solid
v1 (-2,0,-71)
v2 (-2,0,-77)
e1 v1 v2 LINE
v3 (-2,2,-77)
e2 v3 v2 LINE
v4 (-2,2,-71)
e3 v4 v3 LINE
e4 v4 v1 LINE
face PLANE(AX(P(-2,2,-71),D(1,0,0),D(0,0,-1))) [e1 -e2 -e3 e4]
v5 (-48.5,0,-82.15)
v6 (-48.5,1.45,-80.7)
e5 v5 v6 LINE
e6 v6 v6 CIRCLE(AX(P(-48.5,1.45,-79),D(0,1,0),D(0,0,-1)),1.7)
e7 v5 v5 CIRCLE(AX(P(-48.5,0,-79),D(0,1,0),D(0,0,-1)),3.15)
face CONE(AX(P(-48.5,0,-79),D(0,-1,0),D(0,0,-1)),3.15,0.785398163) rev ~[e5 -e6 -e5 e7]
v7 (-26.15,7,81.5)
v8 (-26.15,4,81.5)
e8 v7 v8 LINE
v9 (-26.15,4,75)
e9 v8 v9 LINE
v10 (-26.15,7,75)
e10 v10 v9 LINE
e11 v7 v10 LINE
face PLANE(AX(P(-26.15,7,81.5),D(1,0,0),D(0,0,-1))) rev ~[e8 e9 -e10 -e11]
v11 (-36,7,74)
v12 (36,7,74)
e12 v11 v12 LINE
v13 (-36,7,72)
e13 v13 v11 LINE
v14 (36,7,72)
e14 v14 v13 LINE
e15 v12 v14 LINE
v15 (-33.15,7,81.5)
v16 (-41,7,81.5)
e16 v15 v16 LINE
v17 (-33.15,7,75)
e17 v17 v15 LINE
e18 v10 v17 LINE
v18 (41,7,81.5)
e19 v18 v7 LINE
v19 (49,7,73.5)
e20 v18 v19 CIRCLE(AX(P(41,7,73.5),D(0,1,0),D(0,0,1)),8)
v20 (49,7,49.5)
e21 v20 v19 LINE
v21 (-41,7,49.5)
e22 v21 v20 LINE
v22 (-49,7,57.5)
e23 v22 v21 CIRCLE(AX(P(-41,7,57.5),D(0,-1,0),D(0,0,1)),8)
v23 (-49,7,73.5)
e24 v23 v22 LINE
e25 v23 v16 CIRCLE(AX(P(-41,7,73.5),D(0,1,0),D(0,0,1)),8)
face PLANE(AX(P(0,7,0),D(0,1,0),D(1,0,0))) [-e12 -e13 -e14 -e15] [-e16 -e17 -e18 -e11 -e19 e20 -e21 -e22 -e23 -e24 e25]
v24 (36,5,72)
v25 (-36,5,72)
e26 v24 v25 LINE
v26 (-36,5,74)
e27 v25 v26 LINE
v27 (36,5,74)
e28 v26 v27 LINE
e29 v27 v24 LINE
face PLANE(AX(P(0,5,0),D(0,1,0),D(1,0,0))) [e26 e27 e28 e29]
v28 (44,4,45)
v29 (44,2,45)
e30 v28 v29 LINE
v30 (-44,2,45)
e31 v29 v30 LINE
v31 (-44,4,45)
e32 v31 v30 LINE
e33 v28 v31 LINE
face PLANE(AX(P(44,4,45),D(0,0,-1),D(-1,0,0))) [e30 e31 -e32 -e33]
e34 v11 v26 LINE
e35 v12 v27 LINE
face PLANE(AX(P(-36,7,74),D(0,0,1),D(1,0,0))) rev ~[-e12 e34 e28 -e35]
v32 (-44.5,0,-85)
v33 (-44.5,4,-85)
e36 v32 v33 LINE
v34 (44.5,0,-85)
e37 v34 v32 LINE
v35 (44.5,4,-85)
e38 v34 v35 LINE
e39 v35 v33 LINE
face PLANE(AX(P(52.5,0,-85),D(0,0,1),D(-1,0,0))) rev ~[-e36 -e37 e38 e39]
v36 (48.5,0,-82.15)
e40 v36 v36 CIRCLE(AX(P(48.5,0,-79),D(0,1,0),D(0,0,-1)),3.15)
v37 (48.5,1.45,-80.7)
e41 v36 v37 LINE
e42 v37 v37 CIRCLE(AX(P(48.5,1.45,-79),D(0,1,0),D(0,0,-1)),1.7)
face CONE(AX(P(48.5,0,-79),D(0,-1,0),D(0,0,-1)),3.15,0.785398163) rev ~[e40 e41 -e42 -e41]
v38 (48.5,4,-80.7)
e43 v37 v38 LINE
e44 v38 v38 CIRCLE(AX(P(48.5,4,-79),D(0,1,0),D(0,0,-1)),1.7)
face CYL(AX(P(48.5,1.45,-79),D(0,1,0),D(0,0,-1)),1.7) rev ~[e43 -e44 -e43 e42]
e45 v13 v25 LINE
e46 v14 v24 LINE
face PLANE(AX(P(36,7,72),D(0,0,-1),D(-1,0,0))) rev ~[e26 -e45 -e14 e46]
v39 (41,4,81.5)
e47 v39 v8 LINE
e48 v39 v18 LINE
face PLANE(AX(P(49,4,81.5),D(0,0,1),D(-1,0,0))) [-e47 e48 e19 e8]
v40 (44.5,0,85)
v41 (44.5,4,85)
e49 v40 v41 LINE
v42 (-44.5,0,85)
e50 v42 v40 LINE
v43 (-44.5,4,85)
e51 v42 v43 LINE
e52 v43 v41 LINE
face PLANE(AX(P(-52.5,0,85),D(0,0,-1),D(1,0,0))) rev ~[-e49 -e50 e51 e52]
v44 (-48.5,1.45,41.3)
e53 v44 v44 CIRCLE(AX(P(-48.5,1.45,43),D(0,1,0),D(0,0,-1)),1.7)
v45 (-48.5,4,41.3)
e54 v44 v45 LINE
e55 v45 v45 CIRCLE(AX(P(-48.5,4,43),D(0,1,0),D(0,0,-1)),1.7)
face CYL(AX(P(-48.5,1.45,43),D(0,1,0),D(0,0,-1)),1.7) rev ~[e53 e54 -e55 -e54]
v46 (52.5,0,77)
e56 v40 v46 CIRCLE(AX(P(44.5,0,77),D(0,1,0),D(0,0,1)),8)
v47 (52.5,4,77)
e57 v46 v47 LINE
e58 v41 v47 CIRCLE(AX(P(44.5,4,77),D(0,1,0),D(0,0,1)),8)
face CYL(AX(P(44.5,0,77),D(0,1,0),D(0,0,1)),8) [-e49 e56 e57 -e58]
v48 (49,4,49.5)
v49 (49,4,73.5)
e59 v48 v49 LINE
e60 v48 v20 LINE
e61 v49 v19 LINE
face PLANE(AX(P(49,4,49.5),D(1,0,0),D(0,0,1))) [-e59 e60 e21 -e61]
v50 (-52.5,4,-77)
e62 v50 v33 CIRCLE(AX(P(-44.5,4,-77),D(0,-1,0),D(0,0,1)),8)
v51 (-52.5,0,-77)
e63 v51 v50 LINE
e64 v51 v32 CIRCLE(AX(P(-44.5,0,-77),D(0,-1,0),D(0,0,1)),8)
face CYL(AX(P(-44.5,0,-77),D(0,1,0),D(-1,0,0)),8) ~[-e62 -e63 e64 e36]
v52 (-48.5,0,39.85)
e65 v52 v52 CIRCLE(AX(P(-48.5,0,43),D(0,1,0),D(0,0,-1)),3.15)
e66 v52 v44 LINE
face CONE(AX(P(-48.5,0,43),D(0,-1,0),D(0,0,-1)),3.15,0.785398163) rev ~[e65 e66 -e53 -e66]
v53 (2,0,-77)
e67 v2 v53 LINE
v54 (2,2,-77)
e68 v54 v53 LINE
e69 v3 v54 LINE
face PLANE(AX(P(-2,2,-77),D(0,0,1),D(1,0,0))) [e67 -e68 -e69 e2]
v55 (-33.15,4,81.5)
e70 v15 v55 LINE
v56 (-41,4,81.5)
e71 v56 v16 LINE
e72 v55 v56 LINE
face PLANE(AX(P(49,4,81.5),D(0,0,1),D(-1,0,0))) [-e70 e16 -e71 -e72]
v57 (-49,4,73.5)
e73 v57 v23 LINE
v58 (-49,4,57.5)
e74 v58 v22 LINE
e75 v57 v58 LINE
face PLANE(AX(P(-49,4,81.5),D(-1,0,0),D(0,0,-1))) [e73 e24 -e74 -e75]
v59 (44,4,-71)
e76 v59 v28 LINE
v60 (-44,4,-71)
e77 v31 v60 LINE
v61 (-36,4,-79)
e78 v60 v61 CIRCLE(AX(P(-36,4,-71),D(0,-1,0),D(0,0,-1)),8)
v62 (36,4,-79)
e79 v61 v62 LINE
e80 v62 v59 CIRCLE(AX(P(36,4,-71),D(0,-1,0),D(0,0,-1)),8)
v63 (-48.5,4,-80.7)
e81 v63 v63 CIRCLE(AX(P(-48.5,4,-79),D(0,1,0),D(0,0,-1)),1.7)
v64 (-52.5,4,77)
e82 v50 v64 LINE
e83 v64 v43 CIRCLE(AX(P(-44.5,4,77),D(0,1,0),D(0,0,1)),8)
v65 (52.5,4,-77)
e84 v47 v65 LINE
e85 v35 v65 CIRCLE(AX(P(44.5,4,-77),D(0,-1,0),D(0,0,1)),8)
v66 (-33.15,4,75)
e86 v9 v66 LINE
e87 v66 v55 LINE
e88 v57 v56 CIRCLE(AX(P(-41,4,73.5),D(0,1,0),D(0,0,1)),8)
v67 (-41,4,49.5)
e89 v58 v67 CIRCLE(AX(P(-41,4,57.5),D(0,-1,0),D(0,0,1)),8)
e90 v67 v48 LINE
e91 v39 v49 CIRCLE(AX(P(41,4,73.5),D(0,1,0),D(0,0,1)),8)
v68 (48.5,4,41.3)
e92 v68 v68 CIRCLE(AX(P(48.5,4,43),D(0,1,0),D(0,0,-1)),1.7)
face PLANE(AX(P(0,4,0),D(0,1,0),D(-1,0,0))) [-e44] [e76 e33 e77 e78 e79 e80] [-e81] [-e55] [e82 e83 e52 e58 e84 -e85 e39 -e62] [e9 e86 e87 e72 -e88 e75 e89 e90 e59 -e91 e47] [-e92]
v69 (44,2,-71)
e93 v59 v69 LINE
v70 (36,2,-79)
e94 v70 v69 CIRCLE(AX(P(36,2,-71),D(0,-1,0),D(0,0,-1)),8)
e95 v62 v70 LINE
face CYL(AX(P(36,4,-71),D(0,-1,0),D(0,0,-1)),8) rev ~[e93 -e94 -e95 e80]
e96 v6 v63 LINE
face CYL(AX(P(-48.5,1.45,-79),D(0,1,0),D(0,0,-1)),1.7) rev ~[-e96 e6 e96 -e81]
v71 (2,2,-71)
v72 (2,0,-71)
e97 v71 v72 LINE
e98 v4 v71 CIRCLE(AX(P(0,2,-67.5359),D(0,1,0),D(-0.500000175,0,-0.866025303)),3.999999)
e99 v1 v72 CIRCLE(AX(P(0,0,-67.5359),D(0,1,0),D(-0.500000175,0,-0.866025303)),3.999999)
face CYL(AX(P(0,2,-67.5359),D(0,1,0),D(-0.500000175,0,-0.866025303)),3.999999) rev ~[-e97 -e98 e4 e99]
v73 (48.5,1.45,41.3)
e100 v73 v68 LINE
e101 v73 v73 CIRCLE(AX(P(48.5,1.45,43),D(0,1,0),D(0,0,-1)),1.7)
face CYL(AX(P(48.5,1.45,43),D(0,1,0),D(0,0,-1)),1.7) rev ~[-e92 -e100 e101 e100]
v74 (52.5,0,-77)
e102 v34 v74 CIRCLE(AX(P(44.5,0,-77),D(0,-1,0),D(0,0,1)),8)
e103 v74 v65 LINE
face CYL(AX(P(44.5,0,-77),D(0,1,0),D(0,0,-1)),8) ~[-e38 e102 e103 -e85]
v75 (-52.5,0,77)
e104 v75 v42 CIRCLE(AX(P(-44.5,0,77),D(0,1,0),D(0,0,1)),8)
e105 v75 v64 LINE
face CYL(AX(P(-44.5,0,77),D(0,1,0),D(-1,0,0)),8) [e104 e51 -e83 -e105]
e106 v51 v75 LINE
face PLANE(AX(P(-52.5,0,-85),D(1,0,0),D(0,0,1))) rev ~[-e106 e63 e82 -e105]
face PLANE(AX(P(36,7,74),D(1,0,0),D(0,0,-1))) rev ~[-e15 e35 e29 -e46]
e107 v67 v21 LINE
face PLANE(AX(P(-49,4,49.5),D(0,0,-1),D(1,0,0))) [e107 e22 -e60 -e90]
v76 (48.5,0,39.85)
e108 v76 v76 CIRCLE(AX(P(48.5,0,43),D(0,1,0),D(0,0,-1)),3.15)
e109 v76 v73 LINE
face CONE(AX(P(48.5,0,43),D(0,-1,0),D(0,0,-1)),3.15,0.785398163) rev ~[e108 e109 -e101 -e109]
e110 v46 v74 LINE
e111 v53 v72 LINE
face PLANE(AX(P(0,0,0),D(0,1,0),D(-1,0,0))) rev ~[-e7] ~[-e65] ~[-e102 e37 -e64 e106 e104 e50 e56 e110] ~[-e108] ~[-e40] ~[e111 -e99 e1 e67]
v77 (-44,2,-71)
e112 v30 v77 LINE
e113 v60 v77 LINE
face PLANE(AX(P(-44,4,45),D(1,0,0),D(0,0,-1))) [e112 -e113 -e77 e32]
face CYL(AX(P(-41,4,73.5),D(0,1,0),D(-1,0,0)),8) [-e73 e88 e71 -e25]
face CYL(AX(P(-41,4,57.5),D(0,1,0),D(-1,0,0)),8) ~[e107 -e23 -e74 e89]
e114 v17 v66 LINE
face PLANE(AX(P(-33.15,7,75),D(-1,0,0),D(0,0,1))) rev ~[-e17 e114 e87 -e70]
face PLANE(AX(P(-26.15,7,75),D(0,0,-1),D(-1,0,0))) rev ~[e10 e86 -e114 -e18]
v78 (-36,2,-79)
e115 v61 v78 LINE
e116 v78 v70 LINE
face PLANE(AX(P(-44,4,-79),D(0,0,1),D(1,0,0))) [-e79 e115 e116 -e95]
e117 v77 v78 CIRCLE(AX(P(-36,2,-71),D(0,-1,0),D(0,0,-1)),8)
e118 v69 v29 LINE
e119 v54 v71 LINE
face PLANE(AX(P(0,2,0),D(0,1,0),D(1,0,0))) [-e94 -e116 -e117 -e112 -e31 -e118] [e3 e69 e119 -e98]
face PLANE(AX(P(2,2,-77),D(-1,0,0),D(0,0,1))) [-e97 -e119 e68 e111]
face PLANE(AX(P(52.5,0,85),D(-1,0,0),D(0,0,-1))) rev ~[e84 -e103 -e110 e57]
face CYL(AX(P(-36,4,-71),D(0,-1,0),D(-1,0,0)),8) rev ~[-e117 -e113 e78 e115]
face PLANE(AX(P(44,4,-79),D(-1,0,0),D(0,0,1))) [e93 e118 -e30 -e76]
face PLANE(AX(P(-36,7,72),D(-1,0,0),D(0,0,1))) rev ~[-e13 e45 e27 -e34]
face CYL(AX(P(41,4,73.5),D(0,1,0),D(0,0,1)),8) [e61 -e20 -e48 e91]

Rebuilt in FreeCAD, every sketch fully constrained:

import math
import FreeCAD as App
import Part
import Sketcher
from FreeCAD import Vector


def edges_at(feature, points):
    """Names of the edges that pass closest to the given points."""
    edges = feature.Shape.Edges
    near = lambda p: min(range(len(edges)), key=lambda i: edges[i].distToShape(Part.Vertex(*p))[0])
    return sorted({f"Edge{near(p) + 1}" for p in points})

doc = App.newDocument("Part")
params = doc.addObject("Spreadsheet::Sheet", "Params")
for row, (alias, value) in enumerate([
    ("sketch1_width", "105 mm"),
    ("sketch1_height", "170 mm"),
    ("pad1_length", "4 mm"),
    ("sketch2_width", "88 mm"),
    ("sketch2_height", "124 mm"),
    ("pocket1_length", "2 mm"),
    ("sketch3_height", "32 mm"),
    ("sketch3_width", "98 mm"),
    ("pad2_length", "3 mm"),
    ("fillet_radius", "8 mm"),
    ("sketch4_diameter", "3.4 mm"),
    ("hole_diameter", "3.4 mm"),
    ("hole_depth", "8 mm"),
    ("hole_csink_diameter", "6.3 mm"),
    ("sketch5_radius", "4 mm"),
    ("sketch5_width", "4 mm"),
    ("sketch5_height", "6 mm"),
    ("pocket2_length", "10 mm"),
    ("sketch6_width", "7 mm"),
    ("sketch6_height", "6.5 mm"),
    ("pocket3_length", "3 mm"),
    ("sketch7_width", "72 mm"),
    ("sketch7_height", "2 mm"),
    ("pocket4_length", "2 mm"),
], start=1):
    params.set(f"A{row}", alias)
    params.set(f"B{row}", "=" + value)
    params.setAlias(f"B{row}", alias)

body = doc.addObject("PartDesign::Body", "Body")

# Sketch on XZ plane
sketch1 = body.newObject("Sketcher::SketchObject", "Sketch")
sketch1.AttachmentSupport = (doc.getObject("XZ_Plane"), [""])
sketch1.MapMode = "FlatFace"
sketch1.addGeometry(Part.LineSegment(Vector(-52, -85, 0), Vector(-52, 85, 0)), False)
sketch1.addGeometry(Part.LineSegment(Vector(-52, 85, 0), Vector(52, 85, 0)), False)
sketch1.addGeometry(Part.LineSegment(Vector(52, 85, 0), Vector(52, -85, 0)), False)
sketch1.addGeometry(Part.LineSegment(Vector(52, -85, 0), Vector(-52, -85, 0)), False)
sketch1.addConstraint(Sketcher.Constraint("Coincident", 0, 2, 1, 1))
sketch1.addConstraint(Sketcher.Constraint("Coincident", 1, 2, 2, 1))
sketch1.addConstraint(Sketcher.Constraint("Coincident", 2, 2, 3, 1))
sketch1.addConstraint(Sketcher.Constraint("Coincident", 3, 2, 0, 1))
sketch1.addConstraint(Sketcher.Constraint("Vertical", 0))
sketch1.addConstraint(Sketcher.Constraint("Horizontal", 1))
sketch1.addConstraint(Sketcher.Constraint("Vertical", 2))
sketch1.addConstraint(Sketcher.Constraint("Horizontal", 3))
sketch1.addConstraint(Sketcher.Constraint("Symmetric", 0, 2, 2, 2, -1, 1))
sketch1.addConstraint(Sketcher.Constraint("DistanceX", 1, 1, 1, 2, 105.0))
sketch1.addConstraint(Sketcher.Constraint("DistanceY", 0, 1, 0, 2, 170.0))
sketch1.setExpression("Constraints[9]", "Params.sketch1_width")
sketch1.setExpression("Constraints[10]", "Params.sketch1_height")
pad1 = body.newObject("PartDesign::Pad", "Pad")
pad1.Profile = sketch1
pad1.setExpression("Length", "Params.pad1_length")
pad1.Reversed = True

# Sketch on XZ plane
sketch2 = body.newObject("Sketcher::SketchObject", "Sketch001")
sketch2.AttachmentSupport = (doc.getObject("XZ_Plane"), [""])
sketch2.MapMode = "FlatFace"
sketch2.AttachmentOffset = App.Placement(Vector(0, 0, -4), App.Rotation())
sketch2.addGeometry(Part.LineSegment(Vector(44, -79, 0), Vector(-44, -79, 0)), False)
sketch2.addGeometry(Part.LineSegment(Vector(-44, -79, 0), Vector(-44, 45, 0)), False)
sketch2.addGeometry(Part.LineSegment(Vector(-44, 45, 0), Vector(44, 45, 0)), False)
sketch2.addGeometry(Part.LineSegment(Vector(44, 45, 0), Vector(44, -79, 0)), False)
sketch2.addConstraint(Sketcher.Constraint("Coincident", 0, 2, 1, 1))
sketch2.addConstraint(Sketcher.Constraint("Coincident", 1, 2, 2, 1))
sketch2.addConstraint(Sketcher.Constraint("Coincident", 2, 2, 3, 1))
sketch2.addConstraint(Sketcher.Constraint("Coincident", 3, 2, 0, 1))
sketch2.addConstraint(Sketcher.Constraint("Horizontal", 0))
sketch2.addConstraint(Sketcher.Constraint("Vertical", 1))
sketch2.addConstraint(Sketcher.Constraint("Horizontal", 2))
sketch2.addConstraint(Sketcher.Constraint("Vertical", 3))
sketch2.addConstraint(Sketcher.Constraint("DistanceX", 0, 2, 0, 1, 88.0))
sketch2.addConstraint(Sketcher.Constraint("DistanceY", 1, 1, 1, 2, 124.0))
sketch2.addConstraint(Sketcher.Constraint("DistanceX", 0, 2, -1, 1, 44.0))
sketch2.addConstraint(Sketcher.Constraint("DistanceY", 0, 2, -1, 1, 79.0))
sketch2.setExpression("Constraints[8]", "Params.sketch2_width")
sketch2.setExpression("Constraints[9]", "Params.sketch2_height")
pocket1 = body.newObject("PartDesign::Pocket", "Pocket")
pocket1.Profile = sketch2
pocket1.setExpression("Length", "Params.pocket1_length")
pocket1.Reversed = True

# Sketch on XZ plane
sketch3 = body.newObject("Sketcher::SketchObject", "Sketch002")
sketch3.AttachmentSupport = (doc.getObject("XZ_Plane"), [""])
sketch3.MapMode = "FlatFace"
sketch3.AttachmentOffset = App.Placement(Vector(0, 0, -4), App.Rotation())
sketch3.addGeometry(Part.LineSegment(Vector(49, 50, 0), Vector(-49, 50, 0)), False)
sketch3.addGeometry(Part.LineSegment(Vector(-49, 50, 0), Vector(-49, 82, 0)), False)
sketch3.addGeometry(Part.LineSegment(Vector(-49, 82, 0), Vector(49, 82, 0)), False)
sketch3.addGeometry(Part.LineSegment(Vector(49, 82, 0), Vector(49, 50, 0)), False)
sketch3.addConstraint(Sketcher.Constraint("Coincident", 0, 2, 1, 1))
sketch3.addConstraint(Sketcher.Constraint("Coincident", 1, 2, 2, 1))
sketch3.addConstraint(Sketcher.Constraint("Coincident", 2, 2, 3, 1))
sketch3.addConstraint(Sketcher.Constraint("Coincident", 3, 2, 0, 1))
sketch3.addConstraint(Sketcher.Constraint("Horizontal", 0))
sketch3.addConstraint(Sketcher.Constraint("Vertical", 1))
sketch3.addConstraint(Sketcher.Constraint("Horizontal", 2))
sketch3.addConstraint(Sketcher.Constraint("Vertical", 3))
sketch3.addConstraint(Sketcher.Constraint("DistanceY", 1, 1, 1, 2, 32.0))
sketch3.addConstraint(Sketcher.Constraint("DistanceX", 0, 2, 0, 1, 98.0))
sketch3.addConstraint(Sketcher.Constraint("DistanceX", 0, 2, -1, 1, 49.0))
sketch3.addConstraint(Sketcher.Constraint("DistanceY", -1, 1, 0, 2, 49.5))
sketch3.setExpression("Constraints[8]", "Params.sketch3_height")
sketch3.setExpression("Constraints[9]", "Params.sketch3_width")
pad2 = body.newObject("PartDesign::Pad", "Pad001")
pad2.Profile = sketch3
pad2.setExpression("Length", "Params.pad2_length")
pad2.Reversed = True
doc.recompute()

fillet = body.newObject("PartDesign::Fillet", "Fillet")
fillet.Base = (pad2, edges_at(pad2, [
    (52.5, 2, 85),
    (-52.5, 2, 85),
    (52.5, 2, -85),
    (-52.5, 2, -85),
    (-44, 3, -79),
    (44, 3, -79),
    (-49, 5.5, 49.5),
    (-49, 5.5, 81.5),
    (49, 5.5, 81.5),
]))
fillet.setExpression("Radius", "Params.fillet_radius")

# Sketch on XZ plane
sketch4 = body.newObject("Sketcher::SketchObject", "Sketch003")
sketch4.AttachmentSupport = (doc.getObject("XZ_Plane"), [""])
sketch4.MapMode = "FlatFace"
sketch4.addGeometry(Part.Circle(Vector(48.5, -79, 0), Vector(0, 0, 1), 1.7), False)
sketch4.addGeometry(Part.Circle(Vector(-48.5, -79, 0), Vector(0, 0, 1), 1.7), False)
sketch4.addGeometry(Part.Circle(Vector(-48.5, 43, 0), Vector(0, 0, 1), 1.7), False)
sketch4.addGeometry(Part.Circle(Vector(48.5, 43, 0), Vector(0, 0, 1), 1.7), False)
sketch4.addConstraint(Sketcher.Constraint("Equal", 0, 1))
sketch4.addConstraint(Sketcher.Constraint("Equal", 1, 2))
sketch4.addConstraint(Sketcher.Constraint("Equal", 2, 3))
sketch4.addConstraint(Sketcher.Constraint("Symmetric", 0, 3, 1, 3, -2))
sketch4.addConstraint(Sketcher.Constraint("Symmetric", 2, 3, 3, 3, -2))
sketch4.addConstraint(Sketcher.Constraint("Vertical", 1, 3, 2, 3))
sketch4.addConstraint(Sketcher.Constraint("Diameter", 0, 3.4))
sketch4.addConstraint(Sketcher.Constraint("DistanceY", 0, 3, -1, 1, 79.0))
sketch4.addConstraint(Sketcher.Constraint("DistanceY", -1, 1, 2, 3, 43.0))
sketch4.addConstraint(Sketcher.Constraint("DistanceX", 1, 3, 0, 3, 97.0))
sketch4.setExpression("Constraints[6]", "Params.sketch4_diameter")
doc.recompute()
hole = body.newObject("PartDesign::Hole", "Hole")
hole.Profile = sketch4
hole.ThreadType = "None"
hole.setExpression("Diameter", "Params.hole_diameter")
hole.DepthType = "Dimension"
hole.setExpression("Depth", "Params.hole_depth")
hole.DrillPoint = "Angled"
hole.DrillPointAngle = 118
hole.HoleCutType = "Countersink"
hole.setExpression("HoleCutDiameter", "Params.hole_csink_diameter")
hole.HoleCutCountersinkAngle = 90

# Sketch on XZ plane
sketch5 = body.newObject("Sketcher::SketchObject", "Sketch004")
sketch5.AttachmentSupport = (doc.getObject("XZ_Plane"), [""])
sketch5.MapMode = "FlatFace"
sketch5.AttachmentOffset = App.Placement(Vector(0, 0, -2), App.Rotation())
sketch5.addGeometry(Part.LineSegment(Vector(-2, -77, 0), Vector(-2, -71, 0)), False)
sketch5.addGeometry(Part.ArcOfCircle(Part.Circle(Vector(0, -67.5, 0), Vector(0, 0, 1), 4), math.radians(-60), math.radians(240)), False)
sketch5.addGeometry(Part.LineSegment(Vector(2, -71, 0), Vector(2, -77, 0)), False)
sketch5.addGeometry(Part.LineSegment(Vector(2, -77, 0), Vector(-2, -77, 0)), False)
sketch5.addConstraint(Sketcher.Constraint("Coincident", 0, 2, 1, 2))
sketch5.addConstraint(Sketcher.Constraint("Coincident", 1, 1, 2, 1))
sketch5.addConstraint(Sketcher.Constraint("Coincident", 2, 2, 3, 1))
sketch5.addConstraint(Sketcher.Constraint("Coincident", 3, 2, 0, 1))
sketch5.addConstraint(Sketcher.Constraint("Vertical", 0))
sketch5.addConstraint(Sketcher.Constraint("Vertical", 2))
sketch5.addConstraint(Sketcher.Constraint("Horizontal", 3))
sketch5.addConstraint(Sketcher.Constraint("Symmetric", 0, 2, 1, 1, -2))
sketch5.addConstraint(Sketcher.Constraint("Radius", 1, 4.0))
sketch5.addConstraint(Sketcher.Constraint("DistanceX", 3, 2, 3, 1, 4.0))
sketch5.addConstraint(Sketcher.Constraint("DistanceY", 0, 1, 0, 2, 6.0))
sketch5.addConstraint(Sketcher.Constraint("DistanceY", 0, 2, -1, 1, 71.0))
sketch5.setExpression("Constraints[8]", "Params.sketch5_radius")
sketch5.setExpression("Constraints[9]", "Params.sketch5_width")
sketch5.setExpression("Constraints[10]", "Params.sketch5_height")
pocket2 = body.newObject("PartDesign::Pocket", "Pocket001")
pocket2.Profile = sketch5
pocket2.setExpression("Length", "Params.pocket2_length")
pocket2.Reversed = True

# Sketch on XZ plane
sketch6 = body.newObject("Sketcher::SketchObject", "Sketch005")
sketch6.AttachmentSupport = (doc.getObject("XZ_Plane"), [""])
sketch6.MapMode = "FlatFace"
sketch6.AttachmentOffset = App.Placement(Vector(0, 0, -7), App.Rotation())
sketch6.addGeometry(Part.LineSegment(Vector(-33, 75, 0), Vector(-33, 82, 0)), False)
sketch6.addGeometry(Part.LineSegment(Vector(-33, 82, 0), Vector(-26, 82, 0)), False)
sketch6.addGeometry(Part.LineSegment(Vector(-26, 82, 0), Vector(-26, 75, 0)), False)
sketch6.addGeometry(Part.LineSegment(Vector(-26, 75, 0), Vector(-33, 75, 0)), False)
sketch6.addConstraint(Sketcher.Constraint("Coincident", 0, 2, 1, 1))
sketch6.addConstraint(Sketcher.Constraint("Coincident", 1, 2, 2, 1))
sketch6.addConstraint(Sketcher.Constraint("Coincident", 2, 2, 3, 1))
sketch6.addConstraint(Sketcher.Constraint("Coincident", 3, 2, 0, 1))
sketch6.addConstraint(Sketcher.Constraint("Vertical", 0))
sketch6.addConstraint(Sketcher.Constraint("Horizontal", 1))
sketch6.addConstraint(Sketcher.Constraint("Vertical", 2))
sketch6.addConstraint(Sketcher.Constraint("Horizontal", 3))
sketch6.addConstraint(Sketcher.Constraint("DistanceX", 1, 1, 1, 2, 7.0))
sketch6.addConstraint(Sketcher.Constraint("DistanceY", 0, 1, 0, 2, 6.5))
sketch6.addConstraint(Sketcher.Constraint("DistanceY", -1, 1, 2, 2, 75.0))
sketch6.addConstraint(Sketcher.Constraint("DistanceX", 0, 2, -1, 1, 33.15))
sketch6.setExpression("Constraints[8]", "Params.sketch6_width")
sketch6.setExpression("Constraints[9]", "Params.sketch6_height")
pocket3 = body.newObject("PartDesign::Pocket", "Pocket002")
pocket3.Profile = sketch6
pocket3.setExpression("Length", "Params.pocket3_length")
pocket3.Reversed = True

# Sketch on XZ plane
sketch7 = body.newObject("Sketcher::SketchObject", "Sketch006")
sketch7.AttachmentSupport = (doc.getObject("XZ_Plane"), [""])
sketch7.MapMode = "FlatFace"
sketch7.AttachmentOffset = App.Placement(Vector(0, 0, -7), App.Rotation())
sketch7.addGeometry(Part.LineSegment(Vector(-36, 72, 0), Vector(-36, 74, 0)), False)
sketch7.addGeometry(Part.LineSegment(Vector(-36, 74, 0), Vector(36, 74, 0)), False)
sketch7.addGeometry(Part.LineSegment(Vector(36, 74, 0), Vector(36, 72, 0)), False)
sketch7.addGeometry(Part.LineSegment(Vector(36, 72, 0), Vector(-36, 72, 0)), False)
sketch7.addConstraint(Sketcher.Constraint("Coincident", 0, 2, 1, 1))
sketch7.addConstraint(Sketcher.Constraint("Coincident", 1, 2, 2, 1))
sketch7.addConstraint(Sketcher.Constraint("Coincident", 2, 2, 3, 1))
sketch7.addConstraint(Sketcher.Constraint("Coincident", 3, 2, 0, 1))
sketch7.addConstraint(Sketcher.Constraint("Vertical", 0))
sketch7.addConstraint(Sketcher.Constraint("Horizontal", 1))
sketch7.addConstraint(Sketcher.Constraint("Vertical", 2))
sketch7.addConstraint(Sketcher.Constraint("Horizontal", 3))
sketch7.addConstraint(Sketcher.Constraint("DistanceX", 1, 1, 1, 2, 72.0))
sketch7.addConstraint(Sketcher.Constraint("DistanceY", 0, 1, 0, 2, 2.0))
sketch7.addConstraint(Sketcher.Constraint("DistanceY", -1, 1, 2, 2, 72.0))
sketch7.addConstraint(Sketcher.Constraint("DistanceX", 0, 2, -1, 1, 36.0))
sketch7.setExpression("Constraints[8]", "Params.sketch7_width")
sketch7.setExpression("Constraints[9]", "Params.sketch7_height")
pocket4 = body.newObject("PartDesign::Pocket", "Pocket003")
pocket4.Profile = sketch7
pocket4.setExpression("Length", "Params.pocket4_length")
pocket4.Reversed = True

doc.recompute()
